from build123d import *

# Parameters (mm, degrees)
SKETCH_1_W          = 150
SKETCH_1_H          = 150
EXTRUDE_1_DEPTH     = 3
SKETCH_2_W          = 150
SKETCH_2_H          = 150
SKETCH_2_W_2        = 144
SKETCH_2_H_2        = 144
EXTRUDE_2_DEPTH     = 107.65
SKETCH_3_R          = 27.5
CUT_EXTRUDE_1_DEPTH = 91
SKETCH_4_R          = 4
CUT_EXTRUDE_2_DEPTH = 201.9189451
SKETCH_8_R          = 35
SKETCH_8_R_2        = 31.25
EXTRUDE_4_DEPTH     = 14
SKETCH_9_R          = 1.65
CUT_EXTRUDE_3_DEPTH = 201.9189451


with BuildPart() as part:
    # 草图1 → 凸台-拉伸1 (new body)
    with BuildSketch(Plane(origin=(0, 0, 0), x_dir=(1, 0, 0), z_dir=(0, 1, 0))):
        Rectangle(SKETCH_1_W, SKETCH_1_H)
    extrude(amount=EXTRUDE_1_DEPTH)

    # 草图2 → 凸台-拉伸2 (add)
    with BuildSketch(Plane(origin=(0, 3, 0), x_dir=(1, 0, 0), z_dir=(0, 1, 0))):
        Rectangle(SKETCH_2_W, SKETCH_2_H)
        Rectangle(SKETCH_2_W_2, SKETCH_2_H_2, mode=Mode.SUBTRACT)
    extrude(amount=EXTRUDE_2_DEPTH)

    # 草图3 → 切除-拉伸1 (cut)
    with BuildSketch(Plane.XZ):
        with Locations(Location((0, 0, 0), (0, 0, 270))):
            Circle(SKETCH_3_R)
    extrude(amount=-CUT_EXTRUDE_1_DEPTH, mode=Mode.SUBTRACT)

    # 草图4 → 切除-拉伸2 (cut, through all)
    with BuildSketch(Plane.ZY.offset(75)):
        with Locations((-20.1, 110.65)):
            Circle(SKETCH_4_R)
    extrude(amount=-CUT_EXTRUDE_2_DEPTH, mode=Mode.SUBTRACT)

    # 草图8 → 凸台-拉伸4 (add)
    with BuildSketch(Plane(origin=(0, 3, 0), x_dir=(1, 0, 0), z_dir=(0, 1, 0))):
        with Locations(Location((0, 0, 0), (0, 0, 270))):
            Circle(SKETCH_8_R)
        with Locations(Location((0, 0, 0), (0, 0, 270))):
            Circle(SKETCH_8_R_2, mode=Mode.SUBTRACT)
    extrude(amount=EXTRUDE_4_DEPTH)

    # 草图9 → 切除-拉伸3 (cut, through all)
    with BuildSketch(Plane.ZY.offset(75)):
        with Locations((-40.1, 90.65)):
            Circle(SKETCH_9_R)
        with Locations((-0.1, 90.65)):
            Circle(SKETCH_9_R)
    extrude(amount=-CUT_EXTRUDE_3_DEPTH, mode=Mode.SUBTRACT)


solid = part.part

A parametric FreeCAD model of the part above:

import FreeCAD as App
import Part
import Sketcher


def add_polygon(sketch, points):
    """Adds a closed chain of lines whose ends are joined by coincident constraints."""
    first, n = sketch.GeometryCount, len(points)
    for a, b in zip(points, points[1:] + points[:1]):
        sketch.addGeometry(Part.LineSegment(App.Vector(*a, 0), App.Vector(*b, 0)), False)
    for i in range(n):
        sketch.addConstraint(Sketcher.Constraint("Coincident", first + i, 2, first + (i + 1) % n, 1))

doc = App.newDocument("Part")
body = doc.addObject("PartDesign::Body", "Body")

sketch1 = body.newObject("Sketcher::SketchObject", "Sketch")
sketch1.AttachmentSupport = (doc.getObject("XZ_Plane"), [""])
sketch1.MapMode = "FlatFace"
add_polygon(sketch1, [(-75, -75), (-75, 75), (75, 75), (75, -75)])
sketch1.addConstraint([
    Sketcher.Constraint("Vertical", 0),
    Sketcher.Constraint("Horizontal", 1),
    Sketcher.Constraint("Vertical", 2),
    Sketcher.Constraint("Horizontal", 3),
    Sketcher.Constraint("Symmetric", 0, 2, 2, 2, -1, 1),
    Sketcher.Constraint("Equal", 3, 0),
    Sketcher.Constraint("DistanceX", 1, 1, 1, 2, 150.0),
])
pad1 = body.newObject("PartDesign::Pad", "Pad")
pad1.Profile = sketch1
pad1.Length = 3
pad1.Reversed = True

sketch2 = body.newObject("Sketcher::SketchObject", "Sketch001")
sketch2.AttachmentSupport = (doc.getObject("XZ_Plane"), [""])
sketch2.MapMode = "FlatFace"
sketch2.AttachmentOffset = App.Placement(App.Vector(0, 0, -3), App.Rotation())
add_polygon(sketch2, [(-75, -75), (-75, 75), (75, 75), (75, -75)])
add_polygon(sketch2, [(72, 72), (-72, 72), (-72, -72), (72, -72)])
sketch2.addConstraint([
    Sketcher.Constraint("Vertical", 0),
    Sketcher.Constraint("Horizontal", 1),
    Sketcher.Constraint("Vertical", 2),
    Sketcher.Constraint("Horizontal", 3),
    Sketcher.Constraint("Horizontal", 4),
    Sketcher.Constraint("Vertical", 5),
    Sketcher.Constraint("Horizontal", 6),
    Sketcher.Constraint("Vertical", 7),
    Sketcher.Constraint("Symmetric", 0, 2, 2, 2, -1, 1),
    Sketcher.Constraint("Symmetric", 4, 2, 6, 2, -1, 1),
    Sketcher.Constraint("Equal", 3, 0),
    Sketcher.Constraint("Equal", 6, 5),
    Sketcher.Constraint("DistanceX", 1, 1, 1, 2, 150.0),
    Sketcher.Constraint("DistanceX", 4, 2, 4, 1, 144.0),
])
pad2 = body.newObject("PartDesign::Pad", "Pad001")
pad2.Profile = sketch2
pad2.Length = 107.65
pad2.Reversed = True

sketch3 = body.newObject("Sketcher::SketchObject", "Sketch002")
sketch3.AttachmentSupport = (doc.getObject("XZ_Plane"), [""])
sketch3.MapMode = "FlatFace"
sketch3.addGeometry(Part.Circle(App.Vector(0, 0, 0), App.Vector(0, 0, 1), 28), False)
sketch3.addConstraint([
    Sketcher.Constraint("Coincident", 0, 3, -1, 1),
    Sketcher.Constraint("Diameter", 0, 55.0),
])
pocket1 = body.newObject("PartDesign::Pocket", "Pocket")
pocket1.Profile = sketch3
pocket1.Length = 91

sketch4 = body.newObject("Sketcher::SketchObject", "Sketch003")
sketch4.AttachmentSupport = (doc.getObject("YZ_Plane"), [""])
sketch4.MapMode = "FlatFace"
sketch4.AttachmentOffset = App.Placement(App.Vector(0, 0, -75), App.Rotation())
sketch4.addGeometry(Part.Circle(App.Vector(110.7, -20.1, 0), App.Vector(0, 0, 1), 4), False)
sketch4.addConstraint([
    Sketcher.Constraint("Diameter", 0, 8.0),
    Sketcher.Constraint("DistanceY", 0, 3, -1, 1, 20.1),
    Sketcher.Constraint("DistanceX", -1, 1, 0, 3, 110.65),
])
pocket2 = body.newObject("PartDesign::Pocket", "Pocket001")
pocket2.Profile = sketch4
pocket2.Type = "ThroughAll"
pocket2.Reversed = True

sketch5 = body.newObject("Sketcher::SketchObject", "Sketch004")
sketch5.AttachmentSupport = (doc.getObject("XZ_Plane"), [""])
sketch5.MapMode = "FlatFace"
sketch5.AttachmentOffset = App.Placement(App.Vector(0, 0, -3), App.Rotation())
sketch5.addGeometry([
    Part.Circle(App.Vector(0, 0, 0), App.Vector(0, 0, 1), 35),
    Part.Circle(App.Vector(0, 0, 0), App.Vector(0, 0, 1), 31),
], False)
sketch5.addConstraint([
    Sketcher.Constraint("Coincident", 0, 3, -1, 1),
    Sketcher.Constraint("Coincident", 1, 3, -1, 1),
    Sketcher.Constraint("Diameter", 0, 70.0),
    Sketcher.Constraint("Diameter", 1, 62.5),
])
pad3 = body.newObject("PartDesign::Pad", "Pad002")
pad3.Profile = sketch5
pad3.Length = 14
pad3.Reversed = True

sketch6 = body.newObject("Sketcher::SketchObject", "Sketch005")
sketch6.AttachmentSupport = (doc.getObject("YZ_Plane"), [""])
sketch6.MapMode = "FlatFace"
sketch6.AttachmentOffset = App.Placement(App.Vector(0, 0, -75), App.Rotation())
sketch6.addGeometry([
    Part.Circle(App.Vector(90.7, -40.1, 0), App.Vector(0, 0, 1), 1.6),
    Part.Circle(App.Vector(90.7, -0.1, 0), App.Vector(0, 0, 1), 1.6),
], False)
sketch6.addConstraint([
    Sketcher.Constraint("Equal", 0, 1),
    Sketcher.Constraint("Vertical", 0, 3, 1, 3),
    Sketcher.Constraint("Diameter", 0, 3.3),
    Sketcher.Constraint("DistanceY", 0, 3, 1, 3, 40.0),
    Sketcher.Constraint("DistanceY", 0, 3, -1, 1, 40.1),
    Sketcher.Constraint("DistanceX", -1, 1, 0, 3, 90.65),
])
pocket3 = body.newObject("PartDesign::Pocket", "Pocket002")
pocket3.Profile = sketch6
pocket3.Type = "ThroughAll"
pocket3.Reversed = True

doc.recompute()
